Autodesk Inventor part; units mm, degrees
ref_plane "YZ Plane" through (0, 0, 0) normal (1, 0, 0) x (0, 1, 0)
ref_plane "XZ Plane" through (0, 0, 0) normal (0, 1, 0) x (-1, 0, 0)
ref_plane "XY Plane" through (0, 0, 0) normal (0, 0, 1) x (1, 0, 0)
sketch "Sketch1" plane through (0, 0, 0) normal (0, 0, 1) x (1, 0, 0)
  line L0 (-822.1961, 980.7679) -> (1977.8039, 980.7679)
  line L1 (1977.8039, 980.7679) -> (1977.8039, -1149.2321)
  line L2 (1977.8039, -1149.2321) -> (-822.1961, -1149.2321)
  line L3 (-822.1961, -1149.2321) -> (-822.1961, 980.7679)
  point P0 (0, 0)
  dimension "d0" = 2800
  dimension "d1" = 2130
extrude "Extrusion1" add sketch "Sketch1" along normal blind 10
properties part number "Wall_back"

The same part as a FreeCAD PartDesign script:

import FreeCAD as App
import Part
import Sketcher
Q = App.Units.Quantity


def add_polygon(sketch, points):
    """Adds a closed chain of lines whose ends are joined by coincident constraints."""
    first, n = sketch.GeometryCount, len(points)
    for a, b in zip(points, points[1:] + points[:1]):
        sketch.addGeometry(Part.LineSegment(App.Vector(*a, 0), App.Vector(*b, 0)), False)
    for i in range(n):
        sketch.addConstraint(Sketcher.Constraint("Coincident", first + i, 2, first + (i + 1) % n, 1))

doc = App.newDocument("Part")
params = doc.addObject("Spreadsheet::Sheet", "Params")
for row, (alias, value) in enumerate([
    ("sketch1_width", "2800 mm"),
    ("sketch1_height", "2130 mm"),
    ("pad1_length", "10 mm"),
], start=1):
    params.set(f"A{row}", alias)
    params.set(f"B{row}", "=" + value)
    params.setAlias(f"B{row}", alias)

body = doc.addObject("PartDesign::Body", "Body")

# Sketch on XY plane
sketch1 = body.newObject("Sketcher::SketchObject", "Sketch")
sketch1.AttachmentSupport = (doc.getObject("XY_Plane"), [""])
sketch1.MapMode = "FlatFace"
add_polygon(sketch1, [(1978, 981), (-822, 981), (-822, -1149), (1978, -1149)])  # lines 0-3
sketch1.addConstraint([
    Sketcher.Constraint("Horizontal", 0),
    Sketcher.Constraint("Vertical", 1),
    Sketcher.Constraint("Horizontal", 2),
    Sketcher.Constraint("Vertical", 3),
    Sketcher.Constraint("DistanceX", 0, 2, 0, 1, Q("2800 mm")),
    Sketcher.Constraint("DistanceY", 1, 2, 1, 1, Q("2130 mm")),
    Sketcher.Constraint("DistanceX", 0, 2, -1, 1, Q("822.196 mm")),
    Sketcher.Constraint("DistanceY", -1, 1, 0, 2, Q("980.768 mm")),
])
sketch1.setExpression("Constraints[8]", "Params.sketch1_width")
sketch1.setExpression("Constraints[9]", "Params.sketch1_height")
pad1 = body.newObject("PartDesign::Pad", "Pad")
pad1.Profile = sketch1
pad1.setExpression("Length", "Params.pad1_length")

doc.recompute()
